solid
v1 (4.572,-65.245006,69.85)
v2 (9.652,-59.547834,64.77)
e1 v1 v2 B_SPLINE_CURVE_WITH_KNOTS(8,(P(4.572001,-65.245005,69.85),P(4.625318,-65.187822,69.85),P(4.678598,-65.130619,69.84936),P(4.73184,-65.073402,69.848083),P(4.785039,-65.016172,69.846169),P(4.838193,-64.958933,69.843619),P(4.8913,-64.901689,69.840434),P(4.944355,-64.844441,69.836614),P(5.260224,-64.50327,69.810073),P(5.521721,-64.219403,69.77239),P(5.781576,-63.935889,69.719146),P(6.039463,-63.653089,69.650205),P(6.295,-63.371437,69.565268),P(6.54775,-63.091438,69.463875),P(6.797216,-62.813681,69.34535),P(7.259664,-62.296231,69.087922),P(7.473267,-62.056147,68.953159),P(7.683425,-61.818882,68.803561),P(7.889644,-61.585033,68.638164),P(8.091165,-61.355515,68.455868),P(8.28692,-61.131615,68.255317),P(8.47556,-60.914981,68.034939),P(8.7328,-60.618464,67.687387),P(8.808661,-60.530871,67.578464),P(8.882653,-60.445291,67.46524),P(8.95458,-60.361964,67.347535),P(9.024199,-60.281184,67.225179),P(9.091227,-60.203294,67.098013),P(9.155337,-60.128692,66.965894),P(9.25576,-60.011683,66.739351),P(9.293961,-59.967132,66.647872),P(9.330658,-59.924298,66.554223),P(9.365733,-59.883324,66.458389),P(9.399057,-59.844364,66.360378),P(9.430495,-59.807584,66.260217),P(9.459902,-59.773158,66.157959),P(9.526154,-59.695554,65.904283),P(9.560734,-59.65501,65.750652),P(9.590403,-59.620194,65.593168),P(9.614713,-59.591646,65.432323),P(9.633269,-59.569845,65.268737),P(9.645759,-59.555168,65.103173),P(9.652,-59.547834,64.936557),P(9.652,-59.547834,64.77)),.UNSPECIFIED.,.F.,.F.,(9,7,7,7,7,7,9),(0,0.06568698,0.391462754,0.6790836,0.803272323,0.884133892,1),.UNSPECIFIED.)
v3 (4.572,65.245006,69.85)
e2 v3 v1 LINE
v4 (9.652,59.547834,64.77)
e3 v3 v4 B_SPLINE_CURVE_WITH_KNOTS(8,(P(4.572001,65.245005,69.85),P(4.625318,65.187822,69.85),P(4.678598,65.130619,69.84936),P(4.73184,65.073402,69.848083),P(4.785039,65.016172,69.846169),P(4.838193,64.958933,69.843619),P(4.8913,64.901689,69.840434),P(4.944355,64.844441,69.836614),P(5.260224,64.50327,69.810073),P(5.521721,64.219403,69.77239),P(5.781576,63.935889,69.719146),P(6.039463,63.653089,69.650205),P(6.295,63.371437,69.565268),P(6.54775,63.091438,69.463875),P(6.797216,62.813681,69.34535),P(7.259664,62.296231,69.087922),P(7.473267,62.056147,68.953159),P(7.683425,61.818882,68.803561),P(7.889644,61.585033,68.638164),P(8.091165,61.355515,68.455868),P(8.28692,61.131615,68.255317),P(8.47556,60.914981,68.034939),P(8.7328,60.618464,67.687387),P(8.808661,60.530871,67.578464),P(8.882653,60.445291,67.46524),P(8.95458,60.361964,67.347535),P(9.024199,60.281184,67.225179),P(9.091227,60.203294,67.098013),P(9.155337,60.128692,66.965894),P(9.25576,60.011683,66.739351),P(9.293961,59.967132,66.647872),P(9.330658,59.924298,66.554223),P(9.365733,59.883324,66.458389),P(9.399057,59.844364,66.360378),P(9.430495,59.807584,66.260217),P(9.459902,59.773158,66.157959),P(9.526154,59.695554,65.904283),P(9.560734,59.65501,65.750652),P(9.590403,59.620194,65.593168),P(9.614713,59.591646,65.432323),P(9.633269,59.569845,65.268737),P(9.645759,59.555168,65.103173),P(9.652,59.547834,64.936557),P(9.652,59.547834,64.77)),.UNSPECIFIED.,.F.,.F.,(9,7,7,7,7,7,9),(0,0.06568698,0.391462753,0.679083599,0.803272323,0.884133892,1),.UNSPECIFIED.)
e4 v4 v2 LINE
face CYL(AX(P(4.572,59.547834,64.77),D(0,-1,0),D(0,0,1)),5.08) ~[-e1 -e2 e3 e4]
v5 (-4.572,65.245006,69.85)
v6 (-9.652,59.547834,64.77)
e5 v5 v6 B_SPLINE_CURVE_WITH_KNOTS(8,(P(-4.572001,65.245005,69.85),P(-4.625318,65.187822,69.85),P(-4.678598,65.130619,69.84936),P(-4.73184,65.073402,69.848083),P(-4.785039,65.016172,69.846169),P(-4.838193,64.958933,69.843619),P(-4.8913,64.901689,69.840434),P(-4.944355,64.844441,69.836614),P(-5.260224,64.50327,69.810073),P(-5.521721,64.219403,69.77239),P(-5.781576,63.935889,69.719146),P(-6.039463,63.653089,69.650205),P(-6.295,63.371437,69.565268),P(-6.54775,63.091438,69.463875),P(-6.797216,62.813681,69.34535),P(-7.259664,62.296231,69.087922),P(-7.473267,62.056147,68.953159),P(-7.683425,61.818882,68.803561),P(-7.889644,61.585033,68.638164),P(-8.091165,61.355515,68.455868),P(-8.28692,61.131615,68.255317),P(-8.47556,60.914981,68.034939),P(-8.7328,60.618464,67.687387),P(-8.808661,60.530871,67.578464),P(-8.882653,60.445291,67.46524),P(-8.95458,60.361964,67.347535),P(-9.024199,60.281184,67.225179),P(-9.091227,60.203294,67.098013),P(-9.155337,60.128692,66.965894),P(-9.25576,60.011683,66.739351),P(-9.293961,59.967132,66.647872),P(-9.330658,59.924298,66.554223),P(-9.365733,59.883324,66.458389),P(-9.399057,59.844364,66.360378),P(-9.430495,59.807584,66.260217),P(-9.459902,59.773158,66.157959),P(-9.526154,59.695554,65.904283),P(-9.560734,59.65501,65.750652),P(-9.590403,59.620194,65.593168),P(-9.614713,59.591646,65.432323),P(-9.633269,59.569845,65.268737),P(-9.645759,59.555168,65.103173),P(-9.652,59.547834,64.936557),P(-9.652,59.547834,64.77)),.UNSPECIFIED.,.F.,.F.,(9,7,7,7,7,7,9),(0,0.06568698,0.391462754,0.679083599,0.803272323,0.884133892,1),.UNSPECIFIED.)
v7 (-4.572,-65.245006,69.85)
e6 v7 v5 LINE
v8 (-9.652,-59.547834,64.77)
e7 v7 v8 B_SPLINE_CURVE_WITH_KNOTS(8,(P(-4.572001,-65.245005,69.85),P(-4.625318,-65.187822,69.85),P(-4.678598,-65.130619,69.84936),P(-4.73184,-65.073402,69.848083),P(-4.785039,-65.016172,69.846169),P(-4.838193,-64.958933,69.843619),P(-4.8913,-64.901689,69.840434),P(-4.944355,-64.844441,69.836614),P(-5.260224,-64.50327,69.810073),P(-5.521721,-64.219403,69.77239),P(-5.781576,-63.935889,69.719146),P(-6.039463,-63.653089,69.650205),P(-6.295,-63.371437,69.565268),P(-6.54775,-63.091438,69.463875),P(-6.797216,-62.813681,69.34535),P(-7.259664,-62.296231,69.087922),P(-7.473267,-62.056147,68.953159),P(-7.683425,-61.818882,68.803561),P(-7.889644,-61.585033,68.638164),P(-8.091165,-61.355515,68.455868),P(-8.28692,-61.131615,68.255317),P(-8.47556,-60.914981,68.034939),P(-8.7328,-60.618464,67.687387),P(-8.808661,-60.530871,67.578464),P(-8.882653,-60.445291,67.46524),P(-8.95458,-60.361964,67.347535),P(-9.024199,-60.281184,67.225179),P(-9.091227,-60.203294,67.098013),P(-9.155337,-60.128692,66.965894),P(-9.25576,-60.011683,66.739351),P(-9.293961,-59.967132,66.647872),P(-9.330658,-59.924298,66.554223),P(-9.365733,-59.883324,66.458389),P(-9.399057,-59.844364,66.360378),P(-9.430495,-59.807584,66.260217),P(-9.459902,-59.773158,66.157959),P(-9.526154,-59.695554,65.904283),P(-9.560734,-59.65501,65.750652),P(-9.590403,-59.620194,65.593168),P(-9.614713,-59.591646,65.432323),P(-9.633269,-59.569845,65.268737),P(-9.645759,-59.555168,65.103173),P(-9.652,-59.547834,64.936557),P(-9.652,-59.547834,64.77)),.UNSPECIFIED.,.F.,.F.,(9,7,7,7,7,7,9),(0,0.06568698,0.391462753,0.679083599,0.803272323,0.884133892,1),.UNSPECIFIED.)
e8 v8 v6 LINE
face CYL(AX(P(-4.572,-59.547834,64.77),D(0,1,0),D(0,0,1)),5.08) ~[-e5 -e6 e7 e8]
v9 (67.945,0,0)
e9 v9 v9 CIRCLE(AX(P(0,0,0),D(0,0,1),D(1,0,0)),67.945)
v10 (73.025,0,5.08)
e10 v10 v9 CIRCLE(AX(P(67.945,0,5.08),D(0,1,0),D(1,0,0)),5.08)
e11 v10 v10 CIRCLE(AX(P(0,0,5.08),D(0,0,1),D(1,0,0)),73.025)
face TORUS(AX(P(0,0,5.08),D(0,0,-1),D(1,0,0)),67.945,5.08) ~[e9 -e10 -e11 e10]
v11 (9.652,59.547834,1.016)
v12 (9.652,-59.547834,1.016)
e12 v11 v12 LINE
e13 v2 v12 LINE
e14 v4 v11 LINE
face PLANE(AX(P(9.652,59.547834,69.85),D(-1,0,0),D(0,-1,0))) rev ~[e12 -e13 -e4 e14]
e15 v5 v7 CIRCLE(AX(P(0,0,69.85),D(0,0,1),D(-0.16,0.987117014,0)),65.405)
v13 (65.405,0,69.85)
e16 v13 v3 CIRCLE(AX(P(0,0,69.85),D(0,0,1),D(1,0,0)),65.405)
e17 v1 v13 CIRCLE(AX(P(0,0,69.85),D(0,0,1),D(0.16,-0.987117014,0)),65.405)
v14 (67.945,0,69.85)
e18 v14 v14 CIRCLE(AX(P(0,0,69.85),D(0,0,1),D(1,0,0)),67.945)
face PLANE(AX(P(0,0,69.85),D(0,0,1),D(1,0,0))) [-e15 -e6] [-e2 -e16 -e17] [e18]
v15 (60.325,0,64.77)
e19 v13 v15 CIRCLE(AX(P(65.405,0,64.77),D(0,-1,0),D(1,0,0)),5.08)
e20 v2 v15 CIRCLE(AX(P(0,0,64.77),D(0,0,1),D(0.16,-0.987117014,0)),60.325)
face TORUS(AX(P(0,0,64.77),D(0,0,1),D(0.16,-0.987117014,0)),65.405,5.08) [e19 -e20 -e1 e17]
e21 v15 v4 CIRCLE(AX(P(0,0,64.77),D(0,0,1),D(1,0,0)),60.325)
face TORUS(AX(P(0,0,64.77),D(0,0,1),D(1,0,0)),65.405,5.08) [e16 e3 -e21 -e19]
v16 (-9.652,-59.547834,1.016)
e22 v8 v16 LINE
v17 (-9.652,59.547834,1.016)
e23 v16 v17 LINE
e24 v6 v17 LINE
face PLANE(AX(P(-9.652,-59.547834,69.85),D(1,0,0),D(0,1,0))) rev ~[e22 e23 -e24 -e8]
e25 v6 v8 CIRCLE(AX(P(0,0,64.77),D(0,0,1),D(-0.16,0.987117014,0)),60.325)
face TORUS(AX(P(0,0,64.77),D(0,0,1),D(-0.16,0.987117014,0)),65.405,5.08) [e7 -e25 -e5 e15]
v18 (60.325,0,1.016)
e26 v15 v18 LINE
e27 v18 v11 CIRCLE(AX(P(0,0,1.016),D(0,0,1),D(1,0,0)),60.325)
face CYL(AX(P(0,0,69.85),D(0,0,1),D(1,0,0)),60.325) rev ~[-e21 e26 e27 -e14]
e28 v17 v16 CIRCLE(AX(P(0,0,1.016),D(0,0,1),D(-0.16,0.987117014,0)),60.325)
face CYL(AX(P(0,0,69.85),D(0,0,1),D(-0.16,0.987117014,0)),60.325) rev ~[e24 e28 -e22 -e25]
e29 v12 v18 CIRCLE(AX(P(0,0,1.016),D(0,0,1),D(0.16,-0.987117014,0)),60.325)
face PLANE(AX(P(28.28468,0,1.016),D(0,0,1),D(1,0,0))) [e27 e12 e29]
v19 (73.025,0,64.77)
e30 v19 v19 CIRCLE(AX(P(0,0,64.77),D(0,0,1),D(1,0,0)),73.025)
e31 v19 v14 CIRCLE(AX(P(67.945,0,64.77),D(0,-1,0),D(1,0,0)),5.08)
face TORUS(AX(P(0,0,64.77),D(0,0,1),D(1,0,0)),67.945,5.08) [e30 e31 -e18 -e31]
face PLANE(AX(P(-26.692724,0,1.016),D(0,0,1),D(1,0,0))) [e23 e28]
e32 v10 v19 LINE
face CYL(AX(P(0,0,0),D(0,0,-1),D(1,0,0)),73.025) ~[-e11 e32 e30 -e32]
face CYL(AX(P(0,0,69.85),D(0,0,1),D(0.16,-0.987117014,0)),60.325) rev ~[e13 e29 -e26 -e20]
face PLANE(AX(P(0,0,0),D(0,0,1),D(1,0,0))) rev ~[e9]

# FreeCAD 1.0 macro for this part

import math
import FreeCAD as App
import Part
import Sketcher
Q = App.Units.Quantity


def edges_at(feature, points):
    """Names of the edges that pass closest to the given points."""
    edges = feature.Shape.Edges
    near = lambda p: min(range(len(edges)), key=lambda i: edges[i].distToShape(Part.Vertex(*p))[0])
    return sorted({f"Edge{near(p) + 1}" for p in points})

doc = App.newDocument("Part")
body = doc.addObject("PartDesign::Body", "Body")

# Sketch on XY plane
sketch1 = doc.addObject("Sketcher::SketchObject", "Sketch")
body.addObject(sketch1)
sketch1.AttachmentSupport = (doc.XY_Plane, [""])
sketch1.MapMode = "FlatFace"
sketch1.addGeometry(Part.Circle(App.Vector(0, 0, 0), App.Vector(0, 0, 1), 73), False)
sketch1.addConstraint(Sketcher.Constraint("Coincident", 0, 3, -1, 1))
sketch1.addConstraint(Sketcher.Constraint("Diameter", 0, Q("5.75 in")))
pad1 = doc.addObject("PartDesign::Pad", "Pad")
body.addObject(pad1)
pad1.Profile = sketch1
pad1.Length = Q("2.75 in")

# Sketch on XY plane
sketch2 = doc.addObject("Sketcher::SketchObject", "Sketch001")
body.addObject(sketch2)
sketch2.AttachmentSupport = (doc.XY_Plane, [""])
sketch2.MapMode = "FlatFace"
sketch2.AttachmentOffset = App.Placement(App.Vector(0, 0, 2.75 * 25.4), App.Rotation())
sketch2.addGeometry(Part.ArcOfCircle(Part.Circle(App.Vector(0, 0, 0), App.Vector(0, 0, 1), 60), math.radians(99), math.radians(261)), False)
sketch2.addGeometry(Part.LineSegment(App.Vector(-10, -60, 0), App.Vector(-10, 60, 0)), False)
sketch2.addGeometry(Part.ArcOfCircle(Part.Circle(App.Vector(0, 0, 0), App.Vector(0, 0, 1), 60), math.radians(-81), math.radians(0)), False)
sketch2.addGeometry(Part.ArcOfCircle(Part.Circle(App.Vector(0, 0, 0), App.Vector(0, 0, 1), 60), math.radians(0), math.radians(81)), False)
sketch2.addGeometry(Part.LineSegment(App.Vector(10, 60, 0), App.Vector(10, -60, 0)), False)
sketch2.addConstraint(Sketcher.Constraint("Coincident", 0, 1, 1, 2))
sketch2.addConstraint(Sketcher.Constraint("Coincident", 1, 1, 0, 2))
sketch2.addConstraint(Sketcher.Constraint("Tangent", 2, 2, 3, 1))
sketch2.addConstraint(Sketcher.Constraint("Coincident", 3, 2, 4, 1))
sketch2.addConstraint(Sketcher.Constraint("Coincident", 4, 2, 2, 1))
sketch2.addConstraint(Sketcher.Constraint("Vertical", 1))
sketch2.addConstraint(Sketcher.Constraint("Vertical", 4))
sketch2.addConstraint(Sketcher.Constraint("Coincident", 0, 3, -1, 1))
sketch2.addConstraint(Sketcher.Constraint("Coincident", 2, 3, -1, 1))
sketch2.addConstraint(Sketcher.Constraint("Equal", 0, 2))
sketch2.addConstraint(Sketcher.Constraint("Equal", 2, 3))
sketch2.addConstraint(Sketcher.Constraint("PointOnObject", 2, 2, -1))
sketch2.addConstraint(Sketcher.Constraint("Horizontal", 0, 1, 3, 2))
sketch2.addConstraint(Sketcher.Constraint("Radius", 0, Q("2.375 in")))
sketch2.addConstraint(Sketcher.Constraint("DistanceX", 0, 1, -1, 1, Q("0.38 in")))
pocket1 = doc.addObject("PartDesign::Pocket", "Pocket")
body.addObject(pocket1)
pocket1.Profile = sketch2
pocket1.Length = Q("2.71 in")
doc.recompute()

fillet = doc.addObject("PartDesign::Fillet", "Fillet")
body.addObject(fillet)
fillet.Base = (pocket1, edges_at(pocket1, [
    (-73.025, 0, 69.85),
    (9.652, 0, 69.85),
    (45.942, -39.095, 69.85),
    (-9.652, 0, 69.85),
    (-60.325, 0, 69.85),
    (-73.025, 0, 0),
]))
fillet.Radius = Q("0.2 in")

doc.recompute()
